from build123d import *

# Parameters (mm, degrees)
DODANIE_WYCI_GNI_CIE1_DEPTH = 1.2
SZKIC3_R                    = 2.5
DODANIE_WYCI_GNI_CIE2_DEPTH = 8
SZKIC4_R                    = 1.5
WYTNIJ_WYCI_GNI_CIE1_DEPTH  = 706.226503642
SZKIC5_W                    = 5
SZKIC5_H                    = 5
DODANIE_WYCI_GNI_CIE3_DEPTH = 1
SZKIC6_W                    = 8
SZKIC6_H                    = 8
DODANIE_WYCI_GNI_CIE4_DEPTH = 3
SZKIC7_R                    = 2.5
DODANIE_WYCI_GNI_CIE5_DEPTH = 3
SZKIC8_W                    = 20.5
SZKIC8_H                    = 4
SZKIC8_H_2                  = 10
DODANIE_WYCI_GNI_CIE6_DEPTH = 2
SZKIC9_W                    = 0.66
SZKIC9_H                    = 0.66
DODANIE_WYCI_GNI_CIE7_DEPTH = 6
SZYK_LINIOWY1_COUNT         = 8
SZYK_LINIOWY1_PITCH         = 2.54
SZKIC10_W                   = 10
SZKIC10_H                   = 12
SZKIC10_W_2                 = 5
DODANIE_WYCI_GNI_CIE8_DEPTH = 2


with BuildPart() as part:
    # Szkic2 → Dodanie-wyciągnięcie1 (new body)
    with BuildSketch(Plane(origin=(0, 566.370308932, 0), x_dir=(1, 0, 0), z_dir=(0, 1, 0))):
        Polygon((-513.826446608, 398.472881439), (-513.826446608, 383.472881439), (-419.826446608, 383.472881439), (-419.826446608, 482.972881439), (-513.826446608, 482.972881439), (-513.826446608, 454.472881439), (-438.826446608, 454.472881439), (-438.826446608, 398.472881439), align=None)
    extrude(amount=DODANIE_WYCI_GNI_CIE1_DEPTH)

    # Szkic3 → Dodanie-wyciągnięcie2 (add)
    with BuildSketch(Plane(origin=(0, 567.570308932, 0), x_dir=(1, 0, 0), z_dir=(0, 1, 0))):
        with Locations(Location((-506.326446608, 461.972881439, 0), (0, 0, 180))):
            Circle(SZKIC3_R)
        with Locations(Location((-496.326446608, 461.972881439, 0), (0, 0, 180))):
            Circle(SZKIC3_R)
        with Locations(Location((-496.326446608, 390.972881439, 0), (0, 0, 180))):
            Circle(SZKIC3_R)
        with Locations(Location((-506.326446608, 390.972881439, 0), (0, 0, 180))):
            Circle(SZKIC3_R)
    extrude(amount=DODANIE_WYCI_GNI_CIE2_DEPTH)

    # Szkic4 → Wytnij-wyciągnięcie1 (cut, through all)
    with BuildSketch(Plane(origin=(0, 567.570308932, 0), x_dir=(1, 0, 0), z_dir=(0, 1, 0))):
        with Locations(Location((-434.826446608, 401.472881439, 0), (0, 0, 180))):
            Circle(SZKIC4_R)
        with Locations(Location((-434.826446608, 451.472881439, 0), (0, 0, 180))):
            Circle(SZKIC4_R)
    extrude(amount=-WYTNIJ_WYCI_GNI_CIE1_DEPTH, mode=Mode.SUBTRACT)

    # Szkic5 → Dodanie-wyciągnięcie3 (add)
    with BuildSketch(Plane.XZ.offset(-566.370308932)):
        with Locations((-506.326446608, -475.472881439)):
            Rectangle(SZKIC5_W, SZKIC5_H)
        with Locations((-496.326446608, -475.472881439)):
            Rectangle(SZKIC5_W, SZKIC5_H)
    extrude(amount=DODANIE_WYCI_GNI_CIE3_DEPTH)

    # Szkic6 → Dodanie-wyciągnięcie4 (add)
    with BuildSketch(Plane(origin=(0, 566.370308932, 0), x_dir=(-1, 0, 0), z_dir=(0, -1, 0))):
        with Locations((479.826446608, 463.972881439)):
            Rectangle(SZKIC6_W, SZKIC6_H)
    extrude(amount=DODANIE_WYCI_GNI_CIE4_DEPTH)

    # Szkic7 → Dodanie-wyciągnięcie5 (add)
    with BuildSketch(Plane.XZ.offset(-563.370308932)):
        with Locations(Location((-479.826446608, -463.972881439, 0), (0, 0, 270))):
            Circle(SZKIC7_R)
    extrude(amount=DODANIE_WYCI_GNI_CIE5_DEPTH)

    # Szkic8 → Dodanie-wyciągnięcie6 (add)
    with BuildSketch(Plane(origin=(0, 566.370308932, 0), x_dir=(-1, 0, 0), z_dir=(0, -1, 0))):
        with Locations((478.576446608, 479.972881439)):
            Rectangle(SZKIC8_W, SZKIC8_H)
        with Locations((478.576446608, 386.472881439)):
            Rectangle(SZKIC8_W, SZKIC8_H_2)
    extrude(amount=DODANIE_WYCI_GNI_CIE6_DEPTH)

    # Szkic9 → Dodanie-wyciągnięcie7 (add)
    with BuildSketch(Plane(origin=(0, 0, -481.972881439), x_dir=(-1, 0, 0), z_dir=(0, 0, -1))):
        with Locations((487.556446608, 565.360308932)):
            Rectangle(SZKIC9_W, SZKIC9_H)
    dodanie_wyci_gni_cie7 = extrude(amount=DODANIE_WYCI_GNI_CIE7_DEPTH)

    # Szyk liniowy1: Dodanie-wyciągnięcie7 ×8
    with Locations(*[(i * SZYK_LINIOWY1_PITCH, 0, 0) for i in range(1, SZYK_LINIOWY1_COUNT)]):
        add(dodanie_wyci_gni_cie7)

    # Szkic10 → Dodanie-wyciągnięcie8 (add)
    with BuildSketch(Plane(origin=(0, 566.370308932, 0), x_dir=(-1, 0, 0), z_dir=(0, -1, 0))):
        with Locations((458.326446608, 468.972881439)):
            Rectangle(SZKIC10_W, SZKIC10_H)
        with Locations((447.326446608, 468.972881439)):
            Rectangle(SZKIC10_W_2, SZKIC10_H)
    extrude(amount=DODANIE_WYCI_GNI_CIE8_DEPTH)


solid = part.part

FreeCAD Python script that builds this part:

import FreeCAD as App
import Part
import Sketcher


def add_polygon(sketch, points):
    """Adds a closed chain of lines whose ends are joined by coincident constraints."""
    first, n = sketch.GeometryCount, len(points)
    for a, b in zip(points, points[1:] + points[:1]):
        sketch.addGeometry(Part.LineSegment(App.Vector(*a, 0), App.Vector(*b, 0)), False)
    for i in range(n):
        sketch.addConstraint(Sketcher.Constraint("Coincident", first + i, 2, first + (i + 1) % n, 1))

doc = App.newDocument("Part")
body = doc.addObject("PartDesign::Body", "Body")

sketch1 = doc.addObject("Sketcher::SketchObject", "Sketch")
body.addObject(sketch1)
sketch1.AttachmentSupport = (doc.XZ_Plane, [""])
sketch1.MapMode = "FlatFace"
sketch1.AttachmentOffset = App.Placement(App.Vector(0, 0, -566.370309), App.Rotation())
add_polygon(sketch1, [(-514, -398), (-514, -383), (-420, -383), (-420, -483), (-514, -483), (-514, -454), (-439, -454), (-439, -398)])
sketch1.addConstraint([
    Sketcher.Constraint("Vertical", 0),
    Sketcher.Constraint("Horizontal", 1),
    Sketcher.Constraint("Vertical", 2),
    Sketcher.Constraint("Horizontal", 3),
    Sketcher.Constraint("Vertical", 4),
    Sketcher.Constraint("Horizontal", 5),
    Sketcher.Constraint("Vertical", 6),
    Sketcher.Constraint("Horizontal", 7),
    Sketcher.Constraint("Vertical", 0, 2, 3, 2),
    Sketcher.Constraint("DistanceX", 1, 1, 1, 2, 94.0),
    Sketcher.Constraint("DistanceX", 5, 1, 5, 2, 75.0),
    Sketcher.Constraint("DistanceY", 0, 1, 0, 2, 15.0),
    Sketcher.Constraint("DistanceY", 6, 1, 6, 2, 56.0),
    Sketcher.Constraint("DistanceY", 2, 2, 2, 1, 99.5),
    Sketcher.Constraint("DistanceY", 0, 2, -1, 1, 383.472881),
    Sketcher.Constraint("DistanceX", 0, 2, -1, 1, 513.826447),
])
pad1 = doc.addObject("PartDesign::Pad", "Pad")
body.addObject(pad1)
pad1.Profile = sketch1
pad1.Length = 1.2
pad1.Reversed = True

sketch2 = doc.addObject("Sketcher::SketchObject", "Sketch001")
body.addObject(sketch2)
sketch2.AttachmentSupport = (doc.XZ_Plane, [""])
sketch2.MapMode = "FlatFace"
sketch2.AttachmentOffset = App.Placement(App.Vector(0, 0, -567.570309), App.Rotation())
sketch2.addGeometry([
    Part.Circle(App.Vector(-506.3, -462, 0), App.Vector(0, 0, 1), 2.5),
    Part.Circle(App.Vector(-496.3, -462, 0), App.Vector(0, 0, 1), 2.5),
    Part.Circle(App.Vector(-496.3, -391, 0), App.Vector(0, 0, 1), 2.5),
    Part.Circle(App.Vector(-506.3, -391, 0), App.Vector(0, 0, 1), 2.5),
], False)
sketch2.addConstraint([
    Sketcher.Constraint("Equal", 0, 1),
    Sketcher.Constraint("Equal", 1, 2),
    Sketcher.Constraint("Equal", 2, 3),
    Sketcher.Constraint("Horizontal", 0, 3, 1, 3),
    Sketcher.Constraint("Horizontal", 2, 3, 3, 3),
    Sketcher.Constraint("Vertical", 1, 3, 2, 3),
    Sketcher.Constraint("Vertical", 0, 3, 3, 3),
    Sketcher.Constraint("Diameter", 0, 5.0),
    Sketcher.Constraint("DistanceX", 0, 3, 1, 3, 10.0),
    Sketcher.Constraint("DistanceY", 1, 3, 2, 3, 71.0),
    Sketcher.Constraint("DistanceY", 0, 3, -1, 1, 461.972881),
    Sketcher.Constraint("DistanceX", 0, 3, -1, 1, 506.326447),
])
pad2 = doc.addObject("PartDesign::Pad", "Pad001")
body.addObject(pad2)
pad2.Profile = sketch2
pad2.Length = 8
pad2.Reversed = True

sketch3 = doc.addObject("Sketcher::SketchObject", "Sketch002")
body.addObject(sketch3)
sketch3.AttachmentSupport = (doc.XZ_Plane, [""])
sketch3.MapMode = "FlatFace"
sketch3.AttachmentOffset = App.Placement(App.Vector(0, 0, -567.570309), App.Rotation())
sketch3.addGeometry([
    Part.Circle(App.Vector(-434.8, -401.5, 0), App.Vector(0, 0, 1), 1.5),
    Part.Circle(App.Vector(-434.8, -451.5, 0), App.Vector(0, 0, 1), 1.5),
], False)
sketch3.addConstraint([
    Sketcher.Constraint("Equal", 0, 1),
    Sketcher.Constraint("Vertical", 0, 3, 1, 3),
    Sketcher.Constraint("Diameter", 0, 3.0),
    Sketcher.Constraint("DistanceY", 1, 3, 0, 3, 50.0),
    Sketcher.Constraint("DistanceY", 0, 3, -1, 1, 401.472881),
    Sketcher.Constraint("DistanceX", 0, 3, -1, 1, 434.826447),
])
pocket1 = doc.addObject("PartDesign::Pocket", "Pocket")
body.addObject(pocket1)
pocket1.Profile = sketch3
pocket1.Type = "ThroughAll"
pocket1.Reversed = True

sketch4 = doc.addObject("Sketcher::SketchObject", "Sketch003")
body.addObject(sketch4)
sketch4.AttachmentSupport = (doc.XZ_Plane, [""])
sketch4.MapMode = "FlatFace"
sketch4.AttachmentOffset = App.Placement(App.Vector(0, 0, -566.370309), App.Rotation())
add_polygon(sketch4, [(-509, -473), (-509, -478), (-504, -478), (-504, -473)])
add_polygon(sketch4, [(-499, -473), (-499, -478), (-494, -478), (-494, -473)])
sketch4.addConstraint([
    Sketcher.Constraint("Vertical", 0),
    Sketcher.Constraint("Horizontal", 1),
    Sketcher.Constraint("Vertical", 2),
    Sketcher.Constraint("Horizontal", 3),
    Sketcher.Constraint("Vertical", 4),
    Sketcher.Constraint("Horizontal", 5),
    Sketcher.Constraint("Vertical", 6),
    Sketcher.Constraint("Horizontal", 7),
    Sketcher.Constraint("Horizontal", 1, 2, 4, 2),
    Sketcher.Constraint("Horizontal", 3, 2, 6, 2),
    Sketcher.Constraint("Equal", 3, 5),
    Sketcher.Constraint("Equal", 7, 0),
    Sketcher.Constraint("DistanceX", 1, 1, 1, 2, 5.0),
    Sketcher.Constraint("DistanceX", 1, 2, 4, 2, 5.0),
    Sketcher.Constraint("DistanceY", 0, 2, -1, 1, 477.972881),
    Sketcher.Constraint("DistanceX", 0, 2, -1, 1, 508.826447),
])
pad3 = doc.addObject("PartDesign::Pad", "Pad002")
body.addObject(pad3)
pad3.Profile = sketch4
pad3.Length = 1

sketch5 = doc.addObject("Sketcher::SketchObject", "Sketch004")
body.addObject(sketch5)
sketch5.AttachmentSupport = (doc.XZ_Plane, [""])
sketch5.MapMode = "FlatFace"
sketch5.AttachmentOffset = App.Placement(App.Vector(0, 0, -566.370309), App.Rotation())
add_polygon(sketch5, [(-476, -468), (-476, -460), (-484, -460), (-484, -468)])
sketch5.addConstraint([
    Sketcher.Constraint("Vertical", 0),
    Sketcher.Constraint("Horizontal", 1),
    Sketcher.Constraint("Vertical", 2),
    Sketcher.Constraint("Horizontal", 3),
    Sketcher.Constraint("Equal", 3, 0),
    Sketcher.Constraint("DistanceX", 1, 2, 1, 1, 8.0),
    Sketcher.Constraint("DistanceY", 0, 2, -1, 1, 459.972881),
    Sketcher.Constraint("DistanceX", 0, 2, -1, 1, 475.826447),
])
pad4 = doc.addObject("PartDesign::Pad", "Pad003")
body.addObject(pad4)
pad4.Profile = sketch5
pad4.Length = 3

sketch6 = doc.addObject("Sketcher::SketchObject", "Sketch005")
body.addObject(sketch6)
sketch6.AttachmentSupport = (doc.XZ_Plane, [""])
sketch6.MapMode = "FlatFace"
sketch6.AttachmentOffset = App.Placement(App.Vector(0, 0, -563.370309), App.Rotation())
sketch6.addGeometry(Part.Circle(App.Vector(-479.8, -464, 0), App.Vector(0, 0, 1), 2.5), False)
sketch6.addConstraint([
    Sketcher.Constraint("Diameter", 0, 5.0),
    Sketcher.Constraint("DistanceY", 0, 3, -1, 1, 463.972881),
    Sketcher.Constraint("DistanceX", 0, 3, -1, 1, 479.826447),
])
pad5 = doc.addObject("PartDesign::Pad", "Pad004")
body.addObject(pad5)
pad5.Profile = sketch6
pad5.Length = 3

sketch7 = doc.addObject("Sketcher::SketchObject", "Sketch006")
body.addObject(sketch7)
sketch7.AttachmentSupport = (doc.XZ_Plane, [""])
sketch7.MapMode = "FlatFace"
sketch7.AttachmentOffset = App.Placement(App.Vector(0, 0, -566.370309), App.Rotation())
add_polygon(sketch7, [(-468.3, -482), (-468.3, -478), (-488.8, -478), (-488.8, -482)])
add_polygon(sketch7, [(-468.3, -391.5), (-468.3, -381.5), (-488.8, -381.5), (-488.8, -391.5)])
sketch7.addConstraint([
    Sketcher.Constraint("Vertical", 0),
    Sketcher.Constraint("Horizontal", 1),
    Sketcher.Constraint("Vertical", 2),
    Sketcher.Constraint("Horizontal", 3),
    Sketcher.Constraint("Vertical", 4),
    Sketcher.Constraint("Horizontal", 5),
    Sketcher.Constraint("Vertical", 6),
    Sketcher.Constraint("Horizontal", 7),
    Sketcher.Constraint("Vertical", 3, 2, 4, 2),
    Sketcher.Constraint("Vertical", 2, 2, 5, 2),
    Sketcher.Constraint("DistanceY", 0, 1, 0, 2, 4.0),
    Sketcher.Constraint("DistanceY", 4, 1, 4, 2, 10.0),
    Sketcher.Constraint("DistanceX", 1, 2, 1, 1, 20.5),
    Sketcher.Constraint("DistanceY", 0, 2, 4, 2, 96.5),
    Sketcher.Constraint("DistanceY", 0, 2, -1, 1, 477.972881),
    Sketcher.Constraint("DistanceX", 0, 2, -1, 1, 468.326447),
])
pad6 = doc.addObject("PartDesign::Pad", "Pad005")
body.addObject(pad6)
pad6.Profile = sketch7
pad6.Length = 2

sketch8 = doc.addObject("Sketcher::SketchObject", "Sketch007")
body.addObject(sketch8)
sketch8.AttachmentSupport = (doc.XY_Plane, [""])
sketch8.MapMode = "FlatFace"
sketch8.AttachmentOffset = App.Placement(App.Vector(0, 0, -481.972881), App.Rotation())
add_polygon(sketch8, [(-487.2, 565.7), (-487.2, 565), (-487.9, 565), (-487.9, 565.7)])
sketch8.addConstraint([
    Sketcher.Constraint("Vertical", 0),
    Sketcher.Constraint("Horizontal", 1),
    Sketcher.Constraint("Vertical", 2),
    Sketcher.Constraint("Horizontal", 3),
    Sketcher.Constraint("Equal", 3, 0),
    Sketcher.Constraint("DistanceX", 1, 2, 1, 1, 0.66),
    Sketcher.Constraint("DistanceY", -1, 1, 0, 2, 565.030309),
    Sketcher.Constraint("DistanceX", 0, 2, -1, 1, 487.226447),
])
pad7 = doc.addObject("PartDesign::Pad", "Pad006")
body.addObject(pad7)
pad7.Profile = sketch8
pad7.Length = 6
pad7.Reversed = True
doc.recompute()

linearpattern = doc.addObject("PartDesign::LinearPattern", "LinearPattern")
body.addObject(linearpattern)
linearpattern.Originals = [pad7]
linearpattern.Direction = (doc.X_Axis, [""])
linearpattern.Mode = "offset"
linearpattern.Offset = 2.54
linearpattern.Occurrences = 8
body.Tip = linearpattern

sketch9 = doc.addObject("Sketcher::SketchObject", "Sketch008")
body.addObject(sketch9)
sketch9.AttachmentSupport = (doc.XZ_Plane, [""])
sketch9.MapMode = "FlatFace"
sketch9.AttachmentOffset = App.Placement(App.Vector(0, 0, -566.370309), App.Rotation())
add_polygon(sketch9, [(-453, -475), (-453, -463), (-463, -463), (-463, -475)])
add_polygon(sketch9, [(-445, -475), (-445, -463), (-450, -463), (-450, -475)])
sketch9.addConstraint([
    Sketcher.Constraint("Vertical", 0),
    Sketcher.Constraint("Horizontal", 1),
    Sketcher.Constraint("Vertical", 2),
    Sketcher.Constraint("Horizontal", 3),
    Sketcher.Constraint("Vertical", 4),
    Sketcher.Constraint("Horizontal", 5),
    Sketcher.Constraint("Vertical", 6),
    Sketcher.Constraint("Horizontal", 7),
    Sketcher.Constraint("Horizontal", 1, 2, 4, 2),
    Sketcher.Constraint("Horizontal", 3, 2, 6, 2),
    Sketcher.Constraint("DistanceX", 1, 2, 1, 1, 10.0),
    Sketcher.Constraint("DistanceX", 5, 2, 5, 1, 5.0),
    Sketcher.Constraint("DistanceY", 0, 1, 0, 2, 12.0),
    Sketcher.Constraint("DistanceX", 0, 2, 4, 2, 8.5),
    Sketcher.Constraint("DistanceY", 0, 2, -1, 1, 462.972881),
    Sketcher.Constraint("DistanceX", 0, 2, -1, 1, 453.326447),
])
pad8 = doc.addObject("PartDesign::Pad", "Pad007")
body.addObject(pad8)
pad8.Profile = sketch9
pad8.Length = 2

doc.recompute()
